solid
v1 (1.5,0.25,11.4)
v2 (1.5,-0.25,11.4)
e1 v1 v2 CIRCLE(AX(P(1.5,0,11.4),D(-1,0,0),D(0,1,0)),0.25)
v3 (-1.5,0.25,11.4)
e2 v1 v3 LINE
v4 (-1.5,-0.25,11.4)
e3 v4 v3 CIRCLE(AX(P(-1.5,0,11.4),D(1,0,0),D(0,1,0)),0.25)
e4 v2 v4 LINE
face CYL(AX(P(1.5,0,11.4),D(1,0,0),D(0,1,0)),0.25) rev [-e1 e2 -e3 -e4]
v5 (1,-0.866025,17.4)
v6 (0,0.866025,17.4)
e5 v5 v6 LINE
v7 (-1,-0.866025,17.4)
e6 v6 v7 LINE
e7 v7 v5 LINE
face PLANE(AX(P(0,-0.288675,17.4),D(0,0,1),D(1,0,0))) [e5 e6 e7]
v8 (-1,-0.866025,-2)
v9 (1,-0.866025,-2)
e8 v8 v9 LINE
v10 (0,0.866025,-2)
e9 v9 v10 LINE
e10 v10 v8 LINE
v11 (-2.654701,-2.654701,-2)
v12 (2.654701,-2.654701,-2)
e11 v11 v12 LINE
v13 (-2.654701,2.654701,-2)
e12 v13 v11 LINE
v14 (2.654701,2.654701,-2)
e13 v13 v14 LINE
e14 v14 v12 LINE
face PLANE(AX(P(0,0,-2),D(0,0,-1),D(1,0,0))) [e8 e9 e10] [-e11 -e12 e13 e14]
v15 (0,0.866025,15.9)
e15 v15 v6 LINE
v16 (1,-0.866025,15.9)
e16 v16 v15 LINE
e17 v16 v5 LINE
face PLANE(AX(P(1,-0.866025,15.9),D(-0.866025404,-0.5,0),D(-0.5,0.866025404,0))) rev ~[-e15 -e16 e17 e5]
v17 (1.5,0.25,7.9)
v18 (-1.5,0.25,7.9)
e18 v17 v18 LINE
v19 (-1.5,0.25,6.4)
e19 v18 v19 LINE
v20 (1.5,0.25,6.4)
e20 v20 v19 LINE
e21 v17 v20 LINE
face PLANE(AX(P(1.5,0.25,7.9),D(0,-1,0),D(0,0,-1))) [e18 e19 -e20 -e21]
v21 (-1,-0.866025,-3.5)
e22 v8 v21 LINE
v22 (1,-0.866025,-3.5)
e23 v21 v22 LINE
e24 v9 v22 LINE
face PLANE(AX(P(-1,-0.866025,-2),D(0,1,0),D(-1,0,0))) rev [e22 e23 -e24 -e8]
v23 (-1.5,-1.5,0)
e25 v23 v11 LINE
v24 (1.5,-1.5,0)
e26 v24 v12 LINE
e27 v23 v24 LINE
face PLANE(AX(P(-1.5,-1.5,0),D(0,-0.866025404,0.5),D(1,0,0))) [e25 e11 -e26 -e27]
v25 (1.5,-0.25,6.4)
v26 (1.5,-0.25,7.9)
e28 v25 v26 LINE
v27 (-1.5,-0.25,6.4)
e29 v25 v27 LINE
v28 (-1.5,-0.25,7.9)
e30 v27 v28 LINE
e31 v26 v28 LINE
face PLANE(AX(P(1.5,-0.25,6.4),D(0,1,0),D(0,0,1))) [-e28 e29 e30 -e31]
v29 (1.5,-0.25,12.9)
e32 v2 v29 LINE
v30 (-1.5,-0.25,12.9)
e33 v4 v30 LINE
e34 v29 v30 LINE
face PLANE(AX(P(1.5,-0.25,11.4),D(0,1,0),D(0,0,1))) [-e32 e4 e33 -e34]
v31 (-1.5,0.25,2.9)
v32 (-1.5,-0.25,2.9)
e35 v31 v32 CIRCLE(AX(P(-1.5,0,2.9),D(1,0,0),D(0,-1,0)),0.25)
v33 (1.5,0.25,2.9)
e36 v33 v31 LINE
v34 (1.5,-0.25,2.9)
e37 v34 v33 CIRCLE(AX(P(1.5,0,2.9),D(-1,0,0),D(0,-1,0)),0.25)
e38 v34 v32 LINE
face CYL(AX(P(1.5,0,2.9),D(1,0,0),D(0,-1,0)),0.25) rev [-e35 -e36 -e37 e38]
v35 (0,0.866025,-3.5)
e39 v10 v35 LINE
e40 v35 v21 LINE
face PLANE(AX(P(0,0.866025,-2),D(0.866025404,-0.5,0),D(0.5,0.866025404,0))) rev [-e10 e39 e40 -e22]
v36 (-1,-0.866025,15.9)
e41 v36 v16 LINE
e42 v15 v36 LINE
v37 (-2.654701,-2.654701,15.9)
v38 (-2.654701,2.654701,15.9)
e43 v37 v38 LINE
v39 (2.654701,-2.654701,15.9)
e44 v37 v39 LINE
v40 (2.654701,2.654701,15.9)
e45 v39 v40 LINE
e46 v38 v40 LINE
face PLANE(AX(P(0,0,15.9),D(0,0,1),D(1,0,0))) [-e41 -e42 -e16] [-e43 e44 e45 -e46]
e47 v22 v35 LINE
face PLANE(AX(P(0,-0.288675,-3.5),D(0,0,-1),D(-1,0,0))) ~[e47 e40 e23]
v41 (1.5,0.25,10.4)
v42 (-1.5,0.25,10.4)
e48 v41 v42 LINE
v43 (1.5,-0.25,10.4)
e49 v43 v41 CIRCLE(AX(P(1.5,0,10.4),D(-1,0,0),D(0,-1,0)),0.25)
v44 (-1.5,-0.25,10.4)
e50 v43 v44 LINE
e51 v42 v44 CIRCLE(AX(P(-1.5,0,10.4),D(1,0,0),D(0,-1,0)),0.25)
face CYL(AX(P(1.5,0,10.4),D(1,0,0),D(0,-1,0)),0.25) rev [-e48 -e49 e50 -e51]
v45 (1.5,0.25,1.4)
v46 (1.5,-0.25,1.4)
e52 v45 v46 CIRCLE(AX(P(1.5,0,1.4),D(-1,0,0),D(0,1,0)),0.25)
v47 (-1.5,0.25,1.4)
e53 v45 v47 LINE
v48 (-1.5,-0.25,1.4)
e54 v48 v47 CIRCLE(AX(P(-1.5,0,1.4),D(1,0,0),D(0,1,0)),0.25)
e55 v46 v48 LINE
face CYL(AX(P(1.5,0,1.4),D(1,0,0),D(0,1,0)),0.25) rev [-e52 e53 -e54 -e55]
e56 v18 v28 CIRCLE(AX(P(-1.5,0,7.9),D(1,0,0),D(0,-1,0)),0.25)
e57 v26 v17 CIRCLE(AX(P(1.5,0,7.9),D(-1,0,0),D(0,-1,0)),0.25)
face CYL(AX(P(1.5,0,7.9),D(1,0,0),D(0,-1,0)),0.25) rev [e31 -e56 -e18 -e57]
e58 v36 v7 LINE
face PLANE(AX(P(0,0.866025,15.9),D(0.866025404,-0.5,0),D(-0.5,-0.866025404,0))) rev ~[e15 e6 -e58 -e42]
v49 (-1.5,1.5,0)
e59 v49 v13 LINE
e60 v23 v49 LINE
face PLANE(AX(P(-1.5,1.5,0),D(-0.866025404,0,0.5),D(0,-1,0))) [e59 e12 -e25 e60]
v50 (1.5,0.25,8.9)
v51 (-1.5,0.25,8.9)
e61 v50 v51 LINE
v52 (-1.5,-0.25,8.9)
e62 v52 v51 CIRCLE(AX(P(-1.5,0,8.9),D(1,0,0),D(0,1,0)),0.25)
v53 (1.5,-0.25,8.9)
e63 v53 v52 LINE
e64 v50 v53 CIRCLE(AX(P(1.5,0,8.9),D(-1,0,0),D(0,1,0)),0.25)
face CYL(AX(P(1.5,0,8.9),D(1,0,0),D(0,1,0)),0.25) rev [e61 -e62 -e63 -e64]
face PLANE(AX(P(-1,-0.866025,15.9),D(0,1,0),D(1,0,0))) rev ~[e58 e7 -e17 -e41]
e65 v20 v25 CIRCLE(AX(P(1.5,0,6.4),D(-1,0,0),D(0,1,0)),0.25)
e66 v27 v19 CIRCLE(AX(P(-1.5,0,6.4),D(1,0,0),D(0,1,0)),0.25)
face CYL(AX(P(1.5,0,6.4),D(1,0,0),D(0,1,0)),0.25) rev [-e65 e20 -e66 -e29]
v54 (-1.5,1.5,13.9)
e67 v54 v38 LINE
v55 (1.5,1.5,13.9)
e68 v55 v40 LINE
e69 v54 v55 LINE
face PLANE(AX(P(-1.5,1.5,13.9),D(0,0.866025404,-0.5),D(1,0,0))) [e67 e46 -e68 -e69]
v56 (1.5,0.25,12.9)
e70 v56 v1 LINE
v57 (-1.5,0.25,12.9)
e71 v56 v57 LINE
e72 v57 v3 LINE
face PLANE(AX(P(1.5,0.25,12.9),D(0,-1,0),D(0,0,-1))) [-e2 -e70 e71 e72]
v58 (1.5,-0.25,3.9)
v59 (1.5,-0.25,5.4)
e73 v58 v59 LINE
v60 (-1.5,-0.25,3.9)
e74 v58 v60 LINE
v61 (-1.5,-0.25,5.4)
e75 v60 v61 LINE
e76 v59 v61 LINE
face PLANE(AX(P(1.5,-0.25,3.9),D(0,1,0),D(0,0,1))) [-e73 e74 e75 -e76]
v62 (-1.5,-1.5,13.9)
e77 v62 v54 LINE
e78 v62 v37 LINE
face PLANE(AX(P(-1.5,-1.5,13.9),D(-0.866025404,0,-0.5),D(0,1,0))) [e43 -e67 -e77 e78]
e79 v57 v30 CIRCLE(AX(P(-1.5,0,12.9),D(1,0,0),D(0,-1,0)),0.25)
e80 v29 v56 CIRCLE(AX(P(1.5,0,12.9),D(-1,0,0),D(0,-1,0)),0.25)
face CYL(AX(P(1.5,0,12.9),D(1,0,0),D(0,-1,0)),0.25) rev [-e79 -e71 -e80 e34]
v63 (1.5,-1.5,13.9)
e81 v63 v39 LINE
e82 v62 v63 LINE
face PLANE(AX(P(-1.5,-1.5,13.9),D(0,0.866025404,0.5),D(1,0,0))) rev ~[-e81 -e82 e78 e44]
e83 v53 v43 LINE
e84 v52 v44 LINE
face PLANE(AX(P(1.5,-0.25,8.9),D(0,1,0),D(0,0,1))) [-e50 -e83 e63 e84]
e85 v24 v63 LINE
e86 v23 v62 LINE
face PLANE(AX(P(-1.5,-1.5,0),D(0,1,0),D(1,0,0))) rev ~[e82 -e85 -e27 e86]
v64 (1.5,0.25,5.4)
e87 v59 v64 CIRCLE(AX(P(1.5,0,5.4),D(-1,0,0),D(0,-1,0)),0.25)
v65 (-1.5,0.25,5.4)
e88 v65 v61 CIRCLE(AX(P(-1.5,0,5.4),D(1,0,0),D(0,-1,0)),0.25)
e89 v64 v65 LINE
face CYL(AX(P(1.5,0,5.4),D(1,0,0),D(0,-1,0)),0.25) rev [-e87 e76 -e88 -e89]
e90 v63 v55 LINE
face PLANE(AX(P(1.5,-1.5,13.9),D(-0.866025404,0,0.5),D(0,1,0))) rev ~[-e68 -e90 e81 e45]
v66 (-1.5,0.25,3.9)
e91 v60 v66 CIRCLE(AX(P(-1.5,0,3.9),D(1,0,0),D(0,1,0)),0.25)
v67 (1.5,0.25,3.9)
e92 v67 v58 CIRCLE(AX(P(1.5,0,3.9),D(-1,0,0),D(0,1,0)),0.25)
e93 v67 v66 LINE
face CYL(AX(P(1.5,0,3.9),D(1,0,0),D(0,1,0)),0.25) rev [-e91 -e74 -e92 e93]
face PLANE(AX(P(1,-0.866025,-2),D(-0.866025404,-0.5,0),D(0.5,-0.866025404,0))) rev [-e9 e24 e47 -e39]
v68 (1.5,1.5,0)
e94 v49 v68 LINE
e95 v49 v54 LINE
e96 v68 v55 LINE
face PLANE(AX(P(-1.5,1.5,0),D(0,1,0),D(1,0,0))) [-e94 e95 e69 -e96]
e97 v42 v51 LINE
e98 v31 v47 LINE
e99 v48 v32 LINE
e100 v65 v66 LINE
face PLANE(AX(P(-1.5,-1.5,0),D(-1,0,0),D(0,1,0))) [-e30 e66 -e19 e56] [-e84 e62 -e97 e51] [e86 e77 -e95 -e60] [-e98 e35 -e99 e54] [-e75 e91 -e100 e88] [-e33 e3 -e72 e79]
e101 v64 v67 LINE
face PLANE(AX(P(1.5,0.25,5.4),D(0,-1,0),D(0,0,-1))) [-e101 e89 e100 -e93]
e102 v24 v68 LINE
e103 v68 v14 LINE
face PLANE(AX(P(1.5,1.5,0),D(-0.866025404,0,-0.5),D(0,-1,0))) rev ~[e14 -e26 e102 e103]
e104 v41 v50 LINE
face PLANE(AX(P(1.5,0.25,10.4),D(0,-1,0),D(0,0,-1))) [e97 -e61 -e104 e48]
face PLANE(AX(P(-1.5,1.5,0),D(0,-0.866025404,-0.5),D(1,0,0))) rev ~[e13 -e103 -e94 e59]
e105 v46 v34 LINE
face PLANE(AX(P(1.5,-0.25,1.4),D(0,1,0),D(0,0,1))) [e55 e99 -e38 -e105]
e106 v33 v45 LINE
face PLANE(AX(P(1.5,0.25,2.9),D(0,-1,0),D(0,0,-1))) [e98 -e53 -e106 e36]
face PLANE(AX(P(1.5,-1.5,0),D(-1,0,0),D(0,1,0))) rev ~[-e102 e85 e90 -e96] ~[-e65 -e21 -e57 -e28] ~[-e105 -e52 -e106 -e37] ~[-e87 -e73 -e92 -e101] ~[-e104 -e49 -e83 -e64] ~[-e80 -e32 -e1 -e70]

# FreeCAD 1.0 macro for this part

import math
import FreeCAD as App
import Part
import Sketcher

V = App.Vector
Q = App.Units.Quantity


def faces_at(feature, points):
    """Names of the faces that lie closest to the given points."""
    faces = feature.Shape.Faces
    near = lambda p: min(range(len(faces)), key=lambda i: faces[i].distToShape(Part.Vertex(*p))[0])
    return sorted({f"Face{near(p) + 1}" for p in points})


def add_polygon(sketch, points):
    """Adds a closed chain of lines whose ends are joined by coincident constraints."""
    first, n = sketch.GeometryCount, len(points)
    for a, b in zip(points, points[1:] + points[:1]):
        sketch.addGeometry(Part.LineSegment(App.Vector(*a, 0), App.Vector(*b, 0)), False)
    for i in range(n):
        sketch.addConstraint(Sketcher.Constraint("Coincident", first + i, 2, first + (i + 1) % n, 1))

doc = App.newDocument("Part")
body = doc.addObject("PartDesign::Body", "Body")

sketch1 = body.newObject("Sketcher::SketchObject", "Sketch")
sketch1.AttachmentSupport = (doc.getObject("XY_Plane"), [""])
sketch1.MapMode = "FlatFace"
add_polygon(sketch1, [(-1.5, 1.5), (-1.5, -1.5), (1.5, -1.5), (1.5, 1.5)])
sketch1.addConstraint(Sketcher.Constraint("Vertical", 0))
sketch1.addConstraint(Sketcher.Constraint("Horizontal", 1))
sketch1.addConstraint(Sketcher.Constraint("Vertical", 2))
sketch1.addConstraint(Sketcher.Constraint("Horizontal", 3))
sketch1.addConstraint(Sketcher.Constraint("Symmetric", 0, 2, 2, 2, -1, 1))
sketch1.addConstraint(Sketcher.Constraint("Equal", 3, 0))
sketch1.addConstraint(Sketcher.Constraint("DistanceX", 1, 1, 1, 2, 3.0))
pad1 = body.newObject("PartDesign::Pad", "Pad")
pad1.Profile = sketch1
pad1.Length = 13.9
body2 = doc.addObject("PartDesign::Body", "Body001")

sketch2 = body2.newObject("Sketcher::SketchObject", "Sketch001")
sketch2.AttachmentSupport = (doc.getObject("XY_Plane001"), [""])
sketch2.MapMode = "FlatFace"
sketch2.AttachmentOffset = App.Placement(V(0, 0, 13.9), App.Rotation())
add_polygon(sketch2, [(-1.5, 1.5), (-1.5, -1.5), (1.5, -1.5), (1.5, 1.5)])
sketch2.addConstraint(Sketcher.Constraint("Vertical", 0))
sketch2.addConstraint(Sketcher.Constraint("Horizontal", 1))
sketch2.addConstraint(Sketcher.Constraint("Vertical", 2))
sketch2.addConstraint(Sketcher.Constraint("Horizontal", 3))
sketch2.addConstraint(Sketcher.Constraint("Symmetric", 0, 2, 2, 2, -1, 1))
sketch2.addConstraint(Sketcher.Constraint("Equal", 3, 0))
sketch2.addConstraint(Sketcher.Constraint("DistanceX", 1, 1, 1, 2, 3.0))
pad2 = body2.newObject("PartDesign::Pad", "Pad001")
pad2.Profile = sketch2
pad2.Length = 2
doc.recompute()

datumplane = body2.newObject("PartDesign::Plane", "DatumPlane")
datumplane.AttachmentSupport = (doc.getObject("XY_Plane001"), [""])
datumplane.MapMode = "FlatFace"
datumplane.AttachmentOffset = App.Placement(V(0, 0, 13.9), App.Rotation())
draft = body2.newObject("PartDesign::Draft", "Draft")
draft.Base = (pad2, faces_at(pad2, [
    (1.5, 0, 14.9),
    (0, 1.5, 14.9),
    (-1.5, 0, 14.9),
    (0, -1.5, 14.9),
]))
draft.NeutralPlane = (datumplane, [""])
draft.Angle = 30
draft.Reversed = True
doc.recompute()

boolean = body.newObject("PartDesign::Boolean", "Boolean")
boolean.Type = "Fuse"
boolean.addObjects([body2])
body3 = doc.addObject("PartDesign::Body", "Body002")

sketch3 = body3.newObject("Sketcher::SketchObject", "Sketch002")
sketch3.AttachmentSupport = (doc.getObject("XY_Plane002"), [""])
sketch3.MapMode = "FlatFace"
add_polygon(sketch3, [(-1.5, -1.5), (-1.5, 1.5), (1.5, 1.5), (1.5, -1.5)])
sketch3.addConstraint(Sketcher.Constraint("Vertical", 0))
sketch3.addConstraint(Sketcher.Constraint("Horizontal", 1))
sketch3.addConstraint(Sketcher.Constraint("Vertical", 2))
sketch3.addConstraint(Sketcher.Constraint("Horizontal", 3))
sketch3.addConstraint(Sketcher.Constraint("Symmetric", 0, 2, 2, 2, -1, 1))
sketch3.addConstraint(Sketcher.Constraint("Equal", 3, 0))
sketch3.addConstraint(Sketcher.Constraint("DistanceX", 1, 1, 1, 2, 3.0))
pad3 = body3.newObject("PartDesign::Pad", "Pad002")
pad3.Profile = sketch3
pad3.Length = 2
pad3.Reversed = True
doc.recompute()

draft2 = body3.newObject("PartDesign::Draft", "Draft001")
draft2.Base = (pad3, faces_at(pad3, [
    (1.5, 0, -1),
    (0, 1.5, -1),
    (-1.5, 0, -1),
    (0, -1.5, -1),
]))
draft2.NeutralPlane = (doc.getObject("XY_Plane002"), [""])
draft2.Angle = 30
draft2.Reversed = False
doc.recompute()

boolean2 = body.newObject("PartDesign::Boolean", "Boolean001")
boolean2.Type = "Fuse"
boolean2.addObjects([body3])

sketch4 = body.newObject("Sketcher::SketchObject", "Sketch003")
sketch4.AttachmentSupport = (doc.getObject("XY_Plane"), [""])
sketch4.MapMode = "FlatFace"
sketch4.AttachmentOffset = App.Placement(V(0, 0, 15.9), App.Rotation())
add_polygon(sketch4, [(0, 0.866025), (-1, -0.866025), (1, -0.866025)])
sketch4.addConstraint(Sketcher.Constraint("Horizontal", 1))
sketch4.addConstraint(Sketcher.Constraint("PointOnObject", 2, 2, -2))
sketch4.addConstraint(Sketcher.Constraint("Equal", 0, 2))
sketch4.addConstraint(Sketcher.Constraint("DistanceX", 1, 1, 1, 2, 2.0))
sketch4.addConstraint(Sketcher.Constraint("Angle", 0, Q("-120 deg")))
sketch4.addConstraint(Sketcher.Constraint("DistanceY", 0, 2, -1, 1, 0.866025))
pad4 = body.newObject("PartDesign::Pad", "Pad003")
pad4.Profile = sketch4
pad4.Length = 1.5
doc.recompute()

datumplane2 = body.newObject("PartDesign::Plane", "DatumPlane001")
datumplane2.AttachmentSupport = (doc.getObject("XY_Plane"), [""])
datumplane2.MapMode = "FlatFace"
datumplane2.AttachmentOffset = App.Placement(V(0, 0, 6.95), App.Rotation())
mirrored = body.newObject("PartDesign::Mirrored", "Mirrored")
mirrored.Originals = [pad4]
mirrored.MirrorPlane = (datumplane2, [""])
body.Tip = mirrored

sketch5 = body.newObject("Sketcher::SketchObject", "Sketch004")
sketch5.AttachmentSupport = (doc.getObject("YZ_Plane"), [""])
sketch5.MapMode = "FlatFace"
sketch5.AttachmentOffset = App.Placement(V(0, 0, 1.5), App.Rotation())
sketch5.addGeometry(Part.LineSegment(V(0.25, 11.4, 0), V(0.25, 12.9, 0)), False)
sketch5.addGeometry(Part.ArcOfCircle(Part.Circle(V(0, 12.9, 0), V(0, 0, 1), 0.25), math.radians(0), math.radians(180)), False)
sketch5.addGeometry(Part.LineSegment(V(-0.25, 12.9, 0), V(-0.25, 11.4, 0)), False)
sketch5.addGeometry(Part.ArcOfCircle(Part.Circle(V(0, 11.4, 0), V(0, 0, 1), 0.25), math.radians(180), math.radians(360)), False)
sketch5.addConstraint(Sketcher.Constraint("Tangent", 0, 2, 1, 1))
sketch5.addConstraint(Sketcher.Constraint("Tangent", 1, 2, 2, 1))
sketch5.addConstraint(Sketcher.Constraint("Tangent", 2, 2, 3, 1))
sketch5.addConstraint(Sketcher.Constraint("Tangent", 3, 2, 0, 1))
sketch5.addConstraint(Sketcher.Constraint("Vertical", 0))
sketch5.addConstraint(Sketcher.Constraint("Vertical", 2))
sketch5.addConstraint(Sketcher.Constraint("PointOnObject", 1, 3, -2))
sketch5.addConstraint(Sketcher.Constraint("Radius", 1, 0.25))
sketch5.addConstraint(Sketcher.Constraint("DistanceY", 0, 1, 0, 2, 1.5))
sketch5.addConstraint(Sketcher.Constraint("DistanceY", -1, 1, 1, 3, 12.9))
pocket1 = body.newObject("PartDesign::Pocket", "Pocket")
pocket1.Profile = sketch5
pocket1.Type = "UpToFirst"

sketch6 = body.newObject("Sketcher::SketchObject", "Sketch005")
sketch6.AttachmentSupport = (doc.getObject("YZ_Plane"), [""])
sketch6.MapMode = "FlatFace"
sketch6.AttachmentOffset = App.Placement(V(0, 0, 1.5), App.Rotation())
sketch6.addGeometry(Part.LineSegment(V(0.25, 8.9, 0), V(0.25, 10.4, 0)), False)
sketch6.addGeometry(Part.ArcOfCircle(Part.Circle(V(0, 10.4, 0), V(0, 0, 1), 0.25), math.radians(0), math.radians(180)), False)
sketch6.addGeometry(Part.LineSegment(V(-0.25, 10.4, 0), V(-0.25, 8.9, 0)), False)
sketch6.addGeometry(Part.ArcOfCircle(Part.Circle(V(0, 8.9, 0), V(0, 0, 1), 0.25), math.radians(180), math.radians(360)), False)
sketch6.addConstraint(Sketcher.Constraint("Tangent", 0, 2, 1, 1))
sketch6.addConstraint(Sketcher.Constraint("Tangent", 1, 2, 2, 1))
sketch6.addConstraint(Sketcher.Constraint("Tangent", 2, 2, 3, 1))
sketch6.addConstraint(Sketcher.Constraint("Tangent", 3, 2, 0, 1))
sketch6.addConstraint(Sketcher.Constraint("Vertical", 0))
sketch6.addConstraint(Sketcher.Constraint("Vertical", 2))
sketch6.addConstraint(Sketcher.Constraint("PointOnObject", 1, 3, -2))
sketch6.addConstraint(Sketcher.Constraint("Radius", 1, 0.25))
sketch6.addConstraint(Sketcher.Constraint("DistanceY", 0, 1, 0, 2, 1.5))
sketch6.addConstraint(Sketcher.Constraint("DistanceY", -1, 1, 1, 3, 10.4))
pocket2 = body.newObject("PartDesign::Pocket", "Pocket001")
pocket2.Profile = sketch6
pocket2.Type = "UpToFirst"

sketch7 = body.newObject("Sketcher::SketchObject", "Sketch006")
sketch7.AttachmentSupport = (doc.getObject("YZ_Plane"), [""])
sketch7.MapMode = "FlatFace"
sketch7.AttachmentOffset = App.Placement(V(0, 0, 1.5), App.Rotation())
sketch7.addGeometry(Part.LineSegment(V(0.25, 6.4, 0), V(0.25, 7.9, 0)), False)
sketch7.addGeometry(Part.ArcOfCircle(Part.Circle(V(0, 7.9, 0), V(0, 0, 1), 0.25), math.radians(0), math.radians(180)), False)
sketch7.addGeometry(Part.LineSegment(V(-0.25, 7.9, 0), V(-0.25, 6.4, 0)), False)
sketch7.addGeometry(Part.ArcOfCircle(Part.Circle(V(0, 6.4, 0), V(0, 0, 1), 0.25), math.radians(180), math.radians(360)), False)
sketch7.addConstraint(Sketcher.Constraint("Tangent", 0, 2, 1, 1))
sketch7.addConstraint(Sketcher.Constraint("Tangent", 1, 2, 2, 1))
sketch7.addConstraint(Sketcher.Constraint("Tangent", 2, 2, 3, 1))
sketch7.addConstraint(Sketcher.Constraint("Tangent", 3, 2, 0, 1))
sketch7.addConstraint(Sketcher.Constraint("Vertical", 0))
sketch7.addConstraint(Sketcher.Constraint("Vertical", 2))
sketch7.addConstraint(Sketcher.Constraint("PointOnObject", 1, 3, -2))
sketch7.addConstraint(Sketcher.Constraint("Radius", 1, 0.25))
sketch7.addConstraint(Sketcher.Constraint("DistanceY", 0, 1, 0, 2, 1.5))
sketch7.addConstraint(Sketcher.Constraint("DistanceY", -1, 1, 1, 3, 7.9))
pocket3 = body.newObject("PartDesign::Pocket", "Pocket002")
pocket3.Profile = sketch7
pocket3.Type = "UpToFirst"

sketch8 = body.newObject("Sketcher::SketchObject", "Sketch007")
sketch8.AttachmentSupport = (doc.getObject("YZ_Plane"), [""])
sketch8.MapMode = "FlatFace"
sketch8.AttachmentOffset = App.Placement(V(0, 0, 1.5), App.Rotation())
sketch8.addGeometry(Part.LineSegment(V(0.25, 3.9, 0), V(0.25, 5.4, 0)), False)
sketch8.addGeometry(Part.ArcOfCircle(Part.Circle(V(0, 5.4, 0), V(0, 0, 1), 0.25), math.radians(0), math.radians(180)), False)
sketch8.addGeometry(Part.LineSegment(V(-0.25, 5.4, 0), V(-0.25, 3.9, 0)), False)
sketch8.addGeometry(Part.ArcOfCircle(Part.Circle(V(0, 3.9, 0), V(0, 0, 1), 0.25), math.radians(180), math.radians(360)), False)
sketch8.addConstraint(Sketcher.Constraint("Tangent", 0, 2, 1, 1))
sketch8.addConstraint(Sketcher.Constraint("Tangent", 1, 2, 2, 1))
sketch8.addConstraint(Sketcher.Constraint("Tangent", 2, 2, 3, 1))
sketch8.addConstraint(Sketcher.Constraint("Tangent", 3, 2, 0, 1))
sketch8.addConstraint(Sketcher.Constraint("Vertical", 0))
sketch8.addConstraint(Sketcher.Constraint("Vertical", 2))
sketch8.addConstraint(Sketcher.Constraint("PointOnObject", 1, 3, -2))
sketch8.addConstraint(Sketcher.Constraint("Radius", 1, 0.25))
sketch8.addConstraint(Sketcher.Constraint("DistanceY", 0, 1, 0, 2, 1.5))
sketch8.addConstraint(Sketcher.Constraint("DistanceY", -1, 1, 1, 3, 5.4))
pocket4 = body.newObject("PartDesign::Pocket", "Pocket003")
pocket4.Profile = sketch8
pocket4.Type = "UpToFirst"

sketch9 = body.newObject("Sketcher::SketchObject", "Sketch008")
sketch9.AttachmentSupport = (doc.getObject("YZ_Plane"), [""])
sketch9.MapMode = "FlatFace"
sketch9.AttachmentOffset = App.Placement(V(0, 0, 1.5), App.Rotation())
sketch9.addGeometry(Part.LineSegment(V(0.25, 1.4, 0), V(0.25, 2.9, 0)), False)
sketch9.addGeometry(Part.ArcOfCircle(Part.Circle(V(0, 2.9, 0), V(0, 0, 1), 0.25), math.radians(0), math.radians(180)), False)
sketch9.addGeometry(Part.LineSegment(V(-0.25, 2.9, 0), V(-0.25, 1.4, 0)), False)
sketch9.addGeometry(Part.ArcOfCircle(Part.Circle(V(0, 1.4, 0), V(0, 0, 1), 0.25), math.radians(180), math.radians(360)), False)
sketch9.addConstraint(Sketcher.Constraint("Tangent", 0, 2, 1, 1))
sketch9.addConstraint(Sketcher.Constraint("Tangent", 1, 2, 2, 1))
sketch9.addConstraint(Sketcher.Constraint("Tangent", 2, 2, 3, 1))
sketch9.addConstraint(Sketcher.Constraint("Tangent", 3, 2, 0, 1))
sketch9.addConstraint(Sketcher.Constraint("Vertical", 0))
sketch9.addConstraint(Sketcher.Constraint("Vertical", 2))
sketch9.addConstraint(Sketcher.Constraint("PointOnObject", 1, 3, -2))
sketch9.addConstraint(Sketcher.Constraint("Radius", 1, 0.25))
sketch9.addConstraint(Sketcher.Constraint("DistanceY", 0, 1, 0, 2, 1.5))
sketch9.addConstraint(Sketcher.Constraint("DistanceY", -1, 1, 1, 3, 2.9))
pocket5 = body.newObject("PartDesign::Pocket", "Pocket004")
pocket5.Profile = sketch9
pocket5.Type = "UpToFirst"

doc.recompute()
